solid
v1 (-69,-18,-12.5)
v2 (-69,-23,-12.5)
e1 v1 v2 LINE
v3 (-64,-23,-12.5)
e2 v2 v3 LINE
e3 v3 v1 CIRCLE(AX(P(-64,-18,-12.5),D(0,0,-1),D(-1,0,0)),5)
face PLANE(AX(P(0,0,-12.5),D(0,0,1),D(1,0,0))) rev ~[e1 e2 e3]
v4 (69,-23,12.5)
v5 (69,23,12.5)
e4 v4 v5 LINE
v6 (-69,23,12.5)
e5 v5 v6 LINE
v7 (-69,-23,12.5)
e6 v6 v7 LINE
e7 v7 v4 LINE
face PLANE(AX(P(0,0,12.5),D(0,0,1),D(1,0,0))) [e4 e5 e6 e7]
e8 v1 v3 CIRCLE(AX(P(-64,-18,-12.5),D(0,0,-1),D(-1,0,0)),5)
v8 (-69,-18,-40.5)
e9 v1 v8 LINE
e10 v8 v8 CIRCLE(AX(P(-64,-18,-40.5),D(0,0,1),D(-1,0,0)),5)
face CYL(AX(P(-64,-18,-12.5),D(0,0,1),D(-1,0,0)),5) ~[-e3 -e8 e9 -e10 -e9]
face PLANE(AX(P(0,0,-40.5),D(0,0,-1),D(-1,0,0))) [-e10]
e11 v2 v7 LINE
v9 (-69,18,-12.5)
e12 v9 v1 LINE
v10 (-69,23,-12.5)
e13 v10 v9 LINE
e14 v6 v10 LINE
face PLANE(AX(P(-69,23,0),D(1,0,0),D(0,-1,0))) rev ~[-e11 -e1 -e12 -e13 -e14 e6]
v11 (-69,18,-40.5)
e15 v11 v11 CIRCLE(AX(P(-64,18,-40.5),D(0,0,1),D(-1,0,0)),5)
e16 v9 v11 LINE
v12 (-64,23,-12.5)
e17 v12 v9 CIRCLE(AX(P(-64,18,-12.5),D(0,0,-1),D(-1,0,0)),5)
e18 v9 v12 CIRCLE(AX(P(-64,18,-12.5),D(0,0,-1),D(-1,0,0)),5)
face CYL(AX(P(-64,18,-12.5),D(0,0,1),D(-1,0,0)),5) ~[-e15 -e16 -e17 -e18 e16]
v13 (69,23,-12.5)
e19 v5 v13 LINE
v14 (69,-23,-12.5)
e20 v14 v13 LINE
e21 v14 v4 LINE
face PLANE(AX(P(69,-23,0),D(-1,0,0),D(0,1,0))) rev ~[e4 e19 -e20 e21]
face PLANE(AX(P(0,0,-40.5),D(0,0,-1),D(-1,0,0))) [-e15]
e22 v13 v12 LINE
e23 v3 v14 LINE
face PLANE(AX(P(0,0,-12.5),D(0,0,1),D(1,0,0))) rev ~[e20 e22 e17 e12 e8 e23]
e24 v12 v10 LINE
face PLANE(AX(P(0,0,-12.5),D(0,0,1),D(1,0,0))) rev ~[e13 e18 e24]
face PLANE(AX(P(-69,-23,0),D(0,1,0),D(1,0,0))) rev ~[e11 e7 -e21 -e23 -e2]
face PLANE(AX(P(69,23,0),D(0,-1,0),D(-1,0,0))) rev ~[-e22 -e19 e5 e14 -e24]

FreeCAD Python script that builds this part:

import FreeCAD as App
import Part
import Sketcher


def add_polygon(sketch, points):
    """Adds a closed chain of lines whose ends are joined by coincident constraints."""
    first, n = sketch.GeometryCount, len(points)
    for a, b in zip(points, points[1:] + points[:1]):
        sketch.addGeometry(Part.LineSegment(App.Vector(*a, 0), App.Vector(*b, 0)), False)
    for i in range(n):
        sketch.addConstraint(Sketcher.Constraint("Coincident", first + i, 2, first + (i + 1) % n, 1))

doc = App.newDocument("Part")
body = doc.addObject("PartDesign::Body", "Body")

# Sketch on XY plane
sketch1 = body.newObject("Sketcher::SketchObject", "Sketch")
sketch1.AttachmentSupport = (doc.getObject("XY_Plane"), [""])
sketch1.MapMode = "FlatFace"
add_polygon(sketch1, [(-69, 23), (-69, -23), (69, -23), (69, 23)])  # lines 0-3
sketch1.addConstraint(Sketcher.Constraint("Vertical", 0))
sketch1.addConstraint(Sketcher.Constraint("Horizontal", 1))
sketch1.addConstraint(Sketcher.Constraint("Vertical", 2))
sketch1.addConstraint(Sketcher.Constraint("Horizontal", 3))
sketch1.addConstraint(Sketcher.Constraint("Symmetric", 0, 2, 2, 2, -1, 1))
sketch1.addConstraint(Sketcher.Constraint("DistanceX", 1, 1, 1, 2, 138.0))
sketch1.addConstraint(Sketcher.Constraint("DistanceY", 0, 2, 0, 1, 46.0))
pad1 = body.newObject("PartDesign::Pad", "Pad")
pad1.Profile = sketch1
pad1.Length = 25
pad1.Midplane = True

# Sketch on XY plane
sketch2 = body.newObject("Sketcher::SketchObject", "Sketch001")
sketch2.AttachmentSupport = (doc.getObject("XY_Plane"), [""])
sketch2.MapMode = "FlatFace"
sketch2.AttachmentOffset = App.Placement(App.Vector(0, 0, -12.5), App.Rotation())
sketch2.addGeometry(Part.Circle(App.Vector(-64, -18, 0), App.Vector(0, 0, 1), 5), False)
sketch2.addGeometry(Part.Circle(App.Vector(-64, 18, 0), App.Vector(0, 0, 1), 5), False)
sketch2.addConstraint(Sketcher.Constraint("Equal", 0, 1))
sketch2.addConstraint(Sketcher.Constraint("Symmetric", 0, 3, 1, 3, -1))
sketch2.addConstraint(Sketcher.Constraint("Diameter", 0, 10.0))
sketch2.addConstraint(Sketcher.Constraint("DistanceX", 0, 3, -1, 1, 64.0))
sketch2.addConstraint(Sketcher.Constraint("DistanceY", 0, 3, -1, 1, 18.0))
pad2 = body.newObject("PartDesign::Pad", "Pad001")
pad2.Profile = sketch2
pad2.Length = 28
pad2.Reversed = True

doc.recompute()
